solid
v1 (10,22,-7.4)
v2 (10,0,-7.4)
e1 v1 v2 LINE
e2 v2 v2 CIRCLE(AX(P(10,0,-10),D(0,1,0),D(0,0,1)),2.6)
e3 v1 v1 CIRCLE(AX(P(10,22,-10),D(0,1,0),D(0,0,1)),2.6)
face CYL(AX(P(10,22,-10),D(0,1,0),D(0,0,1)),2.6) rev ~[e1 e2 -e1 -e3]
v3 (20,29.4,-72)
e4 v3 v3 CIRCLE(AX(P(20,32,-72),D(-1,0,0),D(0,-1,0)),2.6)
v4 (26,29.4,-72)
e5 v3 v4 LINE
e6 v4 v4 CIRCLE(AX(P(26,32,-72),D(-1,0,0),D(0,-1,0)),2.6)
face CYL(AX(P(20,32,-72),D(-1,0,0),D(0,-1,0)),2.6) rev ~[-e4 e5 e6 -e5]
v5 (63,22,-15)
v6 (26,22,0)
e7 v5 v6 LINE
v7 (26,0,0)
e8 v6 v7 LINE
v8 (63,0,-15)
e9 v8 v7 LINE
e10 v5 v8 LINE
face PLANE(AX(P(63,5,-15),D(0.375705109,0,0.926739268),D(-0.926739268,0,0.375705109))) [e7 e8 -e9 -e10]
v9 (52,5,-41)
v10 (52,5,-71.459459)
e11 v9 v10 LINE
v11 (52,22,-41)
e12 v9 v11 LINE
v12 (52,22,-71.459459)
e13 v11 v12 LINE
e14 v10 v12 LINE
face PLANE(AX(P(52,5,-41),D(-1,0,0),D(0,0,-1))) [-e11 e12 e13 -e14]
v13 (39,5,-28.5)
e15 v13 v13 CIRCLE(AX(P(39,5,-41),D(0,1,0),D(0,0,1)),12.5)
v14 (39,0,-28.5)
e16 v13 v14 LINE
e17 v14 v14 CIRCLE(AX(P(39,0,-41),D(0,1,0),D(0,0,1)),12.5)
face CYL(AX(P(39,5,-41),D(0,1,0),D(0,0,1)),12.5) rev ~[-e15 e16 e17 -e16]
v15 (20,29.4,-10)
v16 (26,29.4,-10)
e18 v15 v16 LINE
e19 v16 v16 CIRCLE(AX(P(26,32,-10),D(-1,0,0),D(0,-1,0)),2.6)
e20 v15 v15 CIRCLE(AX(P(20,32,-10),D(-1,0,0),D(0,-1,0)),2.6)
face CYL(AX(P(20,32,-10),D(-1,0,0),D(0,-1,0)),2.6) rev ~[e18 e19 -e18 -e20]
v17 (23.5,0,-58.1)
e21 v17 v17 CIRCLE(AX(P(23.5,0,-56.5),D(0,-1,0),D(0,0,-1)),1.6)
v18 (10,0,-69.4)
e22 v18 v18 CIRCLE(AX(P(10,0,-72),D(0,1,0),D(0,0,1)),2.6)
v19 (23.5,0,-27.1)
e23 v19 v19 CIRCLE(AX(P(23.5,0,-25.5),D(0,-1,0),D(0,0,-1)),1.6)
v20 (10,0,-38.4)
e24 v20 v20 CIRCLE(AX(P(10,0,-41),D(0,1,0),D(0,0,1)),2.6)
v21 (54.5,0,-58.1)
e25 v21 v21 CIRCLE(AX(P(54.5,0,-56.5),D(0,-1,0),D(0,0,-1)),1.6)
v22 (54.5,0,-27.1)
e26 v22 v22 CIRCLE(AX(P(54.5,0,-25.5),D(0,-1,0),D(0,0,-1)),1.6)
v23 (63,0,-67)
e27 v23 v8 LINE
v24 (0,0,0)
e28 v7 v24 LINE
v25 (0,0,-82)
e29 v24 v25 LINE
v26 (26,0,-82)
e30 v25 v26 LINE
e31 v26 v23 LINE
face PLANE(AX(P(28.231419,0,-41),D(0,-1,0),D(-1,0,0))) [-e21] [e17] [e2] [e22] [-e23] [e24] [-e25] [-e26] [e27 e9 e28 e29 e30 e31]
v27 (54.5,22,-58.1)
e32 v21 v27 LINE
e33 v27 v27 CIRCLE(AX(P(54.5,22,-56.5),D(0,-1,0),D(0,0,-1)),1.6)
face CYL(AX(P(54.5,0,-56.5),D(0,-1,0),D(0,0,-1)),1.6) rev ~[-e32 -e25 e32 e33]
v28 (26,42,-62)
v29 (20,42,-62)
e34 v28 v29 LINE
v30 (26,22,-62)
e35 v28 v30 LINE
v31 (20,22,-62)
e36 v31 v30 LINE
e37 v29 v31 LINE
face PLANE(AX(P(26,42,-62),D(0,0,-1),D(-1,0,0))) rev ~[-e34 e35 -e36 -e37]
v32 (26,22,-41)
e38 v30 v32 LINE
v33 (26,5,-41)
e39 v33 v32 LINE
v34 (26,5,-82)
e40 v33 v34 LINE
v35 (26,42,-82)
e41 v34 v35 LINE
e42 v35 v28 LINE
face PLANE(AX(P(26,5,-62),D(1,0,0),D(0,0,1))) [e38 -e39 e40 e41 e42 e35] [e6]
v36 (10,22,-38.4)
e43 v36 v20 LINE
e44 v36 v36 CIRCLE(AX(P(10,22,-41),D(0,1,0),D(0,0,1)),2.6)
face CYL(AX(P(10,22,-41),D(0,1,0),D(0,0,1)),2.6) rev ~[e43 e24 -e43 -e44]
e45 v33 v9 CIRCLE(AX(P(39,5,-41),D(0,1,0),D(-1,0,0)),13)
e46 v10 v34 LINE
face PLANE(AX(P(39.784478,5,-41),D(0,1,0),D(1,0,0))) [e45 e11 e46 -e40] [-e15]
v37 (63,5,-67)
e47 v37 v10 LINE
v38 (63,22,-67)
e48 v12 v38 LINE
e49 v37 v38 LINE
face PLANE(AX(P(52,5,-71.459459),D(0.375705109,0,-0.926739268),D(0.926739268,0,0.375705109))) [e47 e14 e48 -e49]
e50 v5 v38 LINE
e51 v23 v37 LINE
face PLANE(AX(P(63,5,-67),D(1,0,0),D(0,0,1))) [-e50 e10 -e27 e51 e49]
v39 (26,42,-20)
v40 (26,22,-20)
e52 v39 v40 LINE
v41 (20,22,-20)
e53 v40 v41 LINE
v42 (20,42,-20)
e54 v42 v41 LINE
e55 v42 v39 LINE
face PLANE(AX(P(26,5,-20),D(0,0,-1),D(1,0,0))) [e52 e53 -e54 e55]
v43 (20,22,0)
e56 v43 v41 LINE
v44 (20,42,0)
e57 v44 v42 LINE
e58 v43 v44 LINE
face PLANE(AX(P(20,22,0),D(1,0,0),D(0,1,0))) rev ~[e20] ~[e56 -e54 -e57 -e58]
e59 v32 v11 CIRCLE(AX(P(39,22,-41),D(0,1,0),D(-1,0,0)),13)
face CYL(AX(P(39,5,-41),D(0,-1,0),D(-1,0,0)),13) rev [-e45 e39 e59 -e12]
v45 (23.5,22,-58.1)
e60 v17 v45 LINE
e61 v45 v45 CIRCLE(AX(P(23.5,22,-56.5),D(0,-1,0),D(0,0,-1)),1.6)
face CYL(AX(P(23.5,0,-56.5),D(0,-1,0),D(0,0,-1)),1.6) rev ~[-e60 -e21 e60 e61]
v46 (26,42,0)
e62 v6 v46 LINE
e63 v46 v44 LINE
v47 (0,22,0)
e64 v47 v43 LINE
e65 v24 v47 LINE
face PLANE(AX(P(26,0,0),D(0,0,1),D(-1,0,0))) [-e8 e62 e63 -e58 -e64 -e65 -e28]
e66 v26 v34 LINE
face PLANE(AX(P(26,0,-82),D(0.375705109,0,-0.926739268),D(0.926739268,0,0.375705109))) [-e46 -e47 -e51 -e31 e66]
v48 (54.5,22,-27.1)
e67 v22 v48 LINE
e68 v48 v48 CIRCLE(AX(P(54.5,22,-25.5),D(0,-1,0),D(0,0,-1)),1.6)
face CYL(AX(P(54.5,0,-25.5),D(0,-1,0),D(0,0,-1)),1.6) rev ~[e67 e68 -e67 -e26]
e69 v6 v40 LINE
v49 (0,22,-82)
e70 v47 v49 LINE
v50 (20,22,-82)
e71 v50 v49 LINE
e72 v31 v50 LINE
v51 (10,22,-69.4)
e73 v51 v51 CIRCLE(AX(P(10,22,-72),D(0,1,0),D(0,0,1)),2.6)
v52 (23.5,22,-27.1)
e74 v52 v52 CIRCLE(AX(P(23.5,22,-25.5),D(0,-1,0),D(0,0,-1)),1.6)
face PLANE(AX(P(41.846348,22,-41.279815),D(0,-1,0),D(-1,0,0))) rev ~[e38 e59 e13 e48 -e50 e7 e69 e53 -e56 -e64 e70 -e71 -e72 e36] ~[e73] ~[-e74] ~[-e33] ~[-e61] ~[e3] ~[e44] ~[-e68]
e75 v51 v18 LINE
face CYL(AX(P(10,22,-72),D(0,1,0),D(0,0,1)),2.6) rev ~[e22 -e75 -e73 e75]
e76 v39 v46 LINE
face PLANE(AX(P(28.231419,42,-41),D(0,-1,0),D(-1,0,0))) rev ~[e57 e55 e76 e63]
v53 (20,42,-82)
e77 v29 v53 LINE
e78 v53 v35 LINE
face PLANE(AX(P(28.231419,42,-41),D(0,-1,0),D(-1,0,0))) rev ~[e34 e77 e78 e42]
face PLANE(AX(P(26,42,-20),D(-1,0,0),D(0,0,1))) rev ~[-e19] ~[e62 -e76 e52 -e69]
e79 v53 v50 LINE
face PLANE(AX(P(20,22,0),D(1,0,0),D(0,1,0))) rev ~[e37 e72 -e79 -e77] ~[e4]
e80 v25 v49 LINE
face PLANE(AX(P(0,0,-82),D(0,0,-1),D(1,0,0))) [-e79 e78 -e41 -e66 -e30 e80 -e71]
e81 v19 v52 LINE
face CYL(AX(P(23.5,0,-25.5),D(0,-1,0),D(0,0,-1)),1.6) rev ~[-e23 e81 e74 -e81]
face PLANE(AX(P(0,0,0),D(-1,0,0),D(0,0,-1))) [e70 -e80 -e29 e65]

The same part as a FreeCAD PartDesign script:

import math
import FreeCAD as App
import Part
import Sketcher
from FreeCAD import Vector


def add_polygon(sketch, points):
    """Adds a closed chain of lines whose ends are joined by coincident constraints."""
    first, n = sketch.GeometryCount, len(points)
    for a, b in zip(points, points[1:] + points[:1]):
        sketch.addGeometry(Part.LineSegment(App.Vector(*a, 0), App.Vector(*b, 0)), False)
    for i in range(n):
        sketch.addConstraint(Sketcher.Constraint("Coincident", first + i, 2, first + (i + 1) % n, 1))

doc = App.newDocument("Part")
body = doc.addObject("PartDesign::Body", "Body")

sketch1 = body.newObject("Sketcher::SketchObject", "Sketch")
sketch1.AttachmentSupport = (doc.getObject("XZ_Plane"), [""])
sketch1.MapMode = "FlatFace"
add_polygon(sketch1, [(0, -82), (0, 0), (26, 0), (63, -15), (63, -67), (26, -82)])
sketch1.addConstraint([
    Sketcher.Constraint("Vertical", 0),
    Sketcher.Constraint("Horizontal", 1),
    Sketcher.Constraint("Vertical", 3),
    Sketcher.Constraint("Horizontal", 5),
    Sketcher.Constraint("Coincident", 0, 2, -1, 1),
    Sketcher.Constraint("Vertical", 1, 2, 4, 2),
    Sketcher.Constraint("Equal", 2, 4),
    Sketcher.Constraint("DistanceX", 1, 1, 1, 2, 26.0),
    Sketcher.Constraint("DistanceY", 0, 1, 0, 2, 82.0),
    Sketcher.Constraint("DistanceY", 3, 2, 3, 1, 52.0),
    Sketcher.Constraint("DistanceX", -1, 1, 2, 2, 63.0),
])
pad1 = body.newObject("PartDesign::Pad", "Pad")
pad1.Profile = sketch1
pad1.Length = 42
pad1.Reversed = True

sketch2 = body.newObject("Sketcher::SketchObject", "Sketch001")
sketch2.AttachmentSupport = (doc.getObject("XY_Plane"), [""])
sketch2.MapMode = "FlatFace"
add_polygon(sketch2, [(0, 42), (0, 22), (20, 22), (20, 42)])
sketch2.addConstraint([
    Sketcher.Constraint("Vertical", 0),
    Sketcher.Constraint("Horizontal", 1),
    Sketcher.Constraint("Vertical", 2),
    Sketcher.Constraint("Horizontal", 3),
    Sketcher.Constraint("PointOnObject", 0, 2, -2),
    Sketcher.Constraint("Equal", 3, 0),
    Sketcher.Constraint("DistanceX", 1, 1, 1, 2, 20.0),
    Sketcher.Constraint("DistanceY", -1, 1, 0, 2, 22.0),
])
pocket1 = body.newObject("PartDesign::Pocket", "Pocket")
pocket1.Profile = sketch2
pocket1.Type = "ThroughAll"

sketch3 = body.newObject("Sketcher::SketchObject", "Sketch002")
sketch3.AttachmentSupport = (doc.getObject("XZ_Plane"), [""])
sketch3.MapMode = "FlatFace"
sketch3.AttachmentOffset = App.Placement(Vector(0, 0, -42), App.Rotation())
add_polygon(sketch3, [(26, -82), (26, -62), (20, -62), (20, -20), (26, -20), (26, 0), (63, -15), (63, -67)])
sketch3.addConstraint([
    Sketcher.Constraint("Vertical", 0),
    Sketcher.Constraint("Horizontal", 1),
    Sketcher.Constraint("Vertical", 2),
    Sketcher.Constraint("Horizontal", 3),
    Sketcher.Constraint("Vertical", 4),
    Sketcher.Constraint("Vertical", 6),
    Sketcher.Constraint("PointOnObject", 4, 2, -1),
    Sketcher.Constraint("Vertical", 0, 2, 3, 2),
    Sketcher.Constraint("Equal", 0, 4),
    Sketcher.Constraint("Equal", 5, 7),
    Sketcher.Constraint("DistanceX", 1, 2, 1, 1, 6.0),
    Sketcher.Constraint("DistanceY", 0, 1, 0, 2, 20.0),
    Sketcher.Constraint("DistanceY", 2, 1, 2, 2, 42.0),
    Sketcher.Constraint("DistanceY", 6, 2, 6, 1, 52.0),
    Sketcher.Constraint("DistanceX", -1, 1, 0, 2, 26.0),
    Sketcher.Constraint("DistanceX", -1, 1, 5, 2, 63.0),
])
pocket2 = body.newObject("PartDesign::Pocket", "Pocket001")
pocket2.Profile = sketch3
pocket2.Length = 37
pocket2.Reversed = True

sketch4 = body.newObject("Sketcher::SketchObject", "Sketch003")
sketch4.AttachmentSupport = (doc.getObject("XZ_Plane"), [""])
sketch4.MapMode = "FlatFace"
sketch4.AttachmentOffset = App.Placement(Vector(0, 0, -22), App.Rotation())
sketch4.addGeometry([
    Part.Circle(Vector(10, -72, 0), Vector(0, 0, 1), 2.6),
    Part.Circle(Vector(10, -41, 0), Vector(0, 0, 1), 2.6),
    Part.Circle(Vector(10, -10, 0), Vector(0, 0, 1), 2.6),
], False)
sketch4.addConstraint([
    Sketcher.Constraint("Equal", 0, 1),
    Sketcher.Constraint("Equal", 1, 2),
    Sketcher.Constraint("Vertical", 0, 3, 1, 3),
    Sketcher.Constraint("Vertical", 1, 3, 2, 3),
    Sketcher.Constraint("Diameter", 0, 5.2),
    Sketcher.Constraint("DistanceX", -1, 1, 0, 3, 10.0),
    Sketcher.Constraint("DistanceY", 0, 3, -1, 1, 72.0),
    Sketcher.Constraint("DistanceY", 1, 3, -1, 1, 41.0),
    Sketcher.Constraint("DistanceY", 2, 3, -1, 1, 10.0),
])
pocket3 = body.newObject("PartDesign::Pocket", "Pocket002")
pocket3.Profile = sketch4
pocket3.Type = "ThroughAll"
pocket3.Reversed = True

sketch5 = body.newObject("Sketcher::SketchObject", "Sketch004")
sketch5.AttachmentSupport = (doc.getObject("YZ_Plane"), [""])
sketch5.MapMode = "FlatFace"
sketch5.AttachmentOffset = App.Placement(Vector(0, 0, 20), App.Rotation())
sketch5.addGeometry([
    Part.Circle(Vector(32, -72, 0), Vector(0, 0, 1), 2.6),
    Part.Circle(Vector(32, -10, 0), Vector(0, 0, 1), 2.6),
], False)
sketch5.addConstraint([
    Sketcher.Constraint("Equal", 0, 1),
    Sketcher.Constraint("Vertical", 0, 3, 1, 3),
    Sketcher.Constraint("Diameter", 0, 5.2),
    Sketcher.Constraint("DistanceX", -1, 1, 0, 3, 32.0),
    Sketcher.Constraint("DistanceY", 0, 3, -1, 1, 72.0),
    Sketcher.Constraint("DistanceY", 1, 3, -1, 1, 10.0),
])
pocket4 = body.newObject("PartDesign::Pocket", "Pocket003")
pocket4.Profile = sketch5
pocket4.Length = 6
pocket4.Reversed = True

sketch6 = body.newObject("Sketcher::SketchObject", "Sketch005")
sketch6.AttachmentSupport = (doc.getObject("XZ_Plane"), [""])
sketch6.MapMode = "FlatFace"
sketch6.AttachmentOffset = App.Placement(Vector(0, 0, -5), App.Rotation())
add_polygon(sketch6, [(63, -20), (26, -20), (26, 0), (63, -15)])
sketch6.addConstraint([
    Sketcher.Constraint("Horizontal", 0),
    Sketcher.Constraint("Vertical", 1),
    Sketcher.Constraint("Vertical", 3),
    Sketcher.Constraint("PointOnObject", 1, 2, -1),
    Sketcher.Constraint("DistanceX", 0, 2, 0, 1, 37.0),
    Sketcher.Constraint("DistanceY", 1, 1, 1, 2, 20.0),
    Sketcher.Constraint("DistanceY", 3, 2, 3, 1, 5.0),
    Sketcher.Constraint("DistanceX", -1, 1, 0, 2, 26.0),
])
pad2 = body.newObject("PartDesign::Pad", "Pad001")
pad2.Profile = sketch6
pad2.Length = 17
pad2.Reversed = True

sketch7 = body.newObject("Sketcher::SketchObject", "Sketch006")
sketch7.AttachmentSupport = (doc.getObject("XZ_Plane"), [""])
sketch7.MapMode = "FlatFace"
sketch7.AttachmentOffset = App.Placement(Vector(0, 0, -5), App.Rotation())
sketch7.addGeometry(Part.Circle(Vector(39, -41, 0), Vector(0, 0, 1), 12.5), False)
sketch7.addConstraint([
    Sketcher.Constraint("Diameter", 0, 25.0),
    Sketcher.Constraint("DistanceX", -1, 1, 0, 3, 39.0),
    Sketcher.Constraint("DistanceY", 0, 3, -1, 1, 41.0),
])
pocket5 = body.newObject("PartDesign::Pocket", "Pocket004")
pocket5.Profile = sketch7
pocket5.Type = "ThroughAll"
pocket5.Reversed = True

sketch8 = body.newObject("Sketcher::SketchObject", "Sketch007")
sketch8.AttachmentSupport = (doc.getObject("XZ_Plane"), [""])
sketch8.MapMode = "FlatFace"
sketch8.AttachmentOffset = App.Placement(Vector(0, 0, -5), App.Rotation())
sketch8.addGeometry([
    Part.LineSegment(Vector(26, -41, 0), Vector(26, -62, 0)),
    Part.LineSegment(Vector(26, -62, 0), Vector(20, -62, 0)),
    Part.LineSegment(Vector(20, -62, 0), Vector(20, -20, 0)),
    Part.LineSegment(Vector(20, -20, 0), Vector(63, -20, 0)),
    Part.LineSegment(Vector(63, -20, 0), Vector(63, -67, 0)),
    Part.LineSegment(Vector(63, -67, 0), Vector(52, -71.459459, 0)),
    Part.LineSegment(Vector(52, -71.459459, 0), Vector(52, -41, 0)),
    Part.ArcOfCircle(Part.Circle(Vector(39, -41, 0), Vector(0, 0, 1), 13), math.radians(0), math.radians(180)),
], False)
sketch8.addConstraint([
    Sketcher.Constraint("Coincident", 0, 2, 1, 1),
    Sketcher.Constraint("Coincident", 1, 2, 2, 1),
    Sketcher.Constraint("Coincident", 2, 2, 3, 1),
    Sketcher.Constraint("Coincident", 3, 2, 4, 1),
    Sketcher.Constraint("Coincident", 4, 2, 5, 1),
    Sketcher.Constraint("Coincident", 5, 2, 6, 1),
    Sketcher.Constraint("Tangent", 6, 2, 7, 1),
    Sketcher.Constraint("Tangent", 7, 2, 0, 1),
    Sketcher.Constraint("Vertical", 0),
    Sketcher.Constraint("Horizontal", 1),
    Sketcher.Constraint("Vertical", 2),
    Sketcher.Constraint("Horizontal", 3),
    Sketcher.Constraint("Vertical", 4),
    Sketcher.Constraint("Vertical", 6),
    Sketcher.Constraint("Radius", 7, 13.0),
    Sketcher.Constraint("DistanceX", 1, 2, 1, 1, 6.0),
    Sketcher.Constraint("DistanceX", 3, 1, 3, 2, 43.0),
    Sketcher.Constraint("DistanceY", 0, 2, 0, 1, 21.0),
    Sketcher.Constraint("DistanceY", 2, 1, 2, 2, 42.0),
    Sketcher.Constraint("DistanceY", 4, 2, 4, 1, 47.0),
    Sketcher.Constraint("DistanceX", -1, 1, 7, 3, 39.0),
    Sketcher.Constraint("DistanceY", 7, 3, -1, 1, 41.0),
    Sketcher.Constraint("DistanceY", 6, 1, 6, 2, 30.459459),
])
pad3 = body.newObject("PartDesign::Pad", "Pad002")
pad3.Profile = sketch8
pad3.Length = 17
pad3.Reversed = True

sketch9 = body.newObject("Sketcher::SketchObject", "Sketch008")
sketch9.AttachmentSupport = (doc.getObject("XZ_Plane"), [""])
sketch9.MapMode = "FlatFace"
sketch9.addGeometry([
    Part.Circle(Vector(23.5, -25.5, 0), Vector(0, 0, 1), 1.6),
    Part.Circle(Vector(54.5, -25.5, 0), Vector(0, 0, 1), 1.6),
    Part.Circle(Vector(54.5, -56.5, 0), Vector(0, 0, 1), 1.6),
    Part.Circle(Vector(23.5, -56.5, 0), Vector(0, 0, 1), 1.6),
], False)
sketch9.addConstraint([
    Sketcher.Constraint("Equal", 0, 1),
    Sketcher.Constraint("Equal", 1, 2),
    Sketcher.Constraint("Equal", 2, 3),
    Sketcher.Constraint("Horizontal", 0, 3, 1, 3),
    Sketcher.Constraint("Horizontal", 2, 3, 3, 3),
    Sketcher.Constraint("Vertical", 1, 3, 2, 3),
    Sketcher.Constraint("Vertical", 0, 3, 3, 3),
    Sketcher.Constraint("Diameter", 0, 3.2),
    Sketcher.Constraint("DistanceX", 0, 3, 1, 3, 31.0),
    Sketcher.Constraint("DistanceY", 2, 3, 1, 3, 31.0),
    Sketcher.Constraint("DistanceX", -1, 1, 0, 3, 23.5),
    Sketcher.Constraint("DistanceY", 0, 3, -1, 1, 25.5),
])
pocket6 = body.newObject("PartDesign::Pocket", "Pocket005")
pocket6.Profile = sketch9
pocket6.Type = "ThroughAll"

doc.recompute()
